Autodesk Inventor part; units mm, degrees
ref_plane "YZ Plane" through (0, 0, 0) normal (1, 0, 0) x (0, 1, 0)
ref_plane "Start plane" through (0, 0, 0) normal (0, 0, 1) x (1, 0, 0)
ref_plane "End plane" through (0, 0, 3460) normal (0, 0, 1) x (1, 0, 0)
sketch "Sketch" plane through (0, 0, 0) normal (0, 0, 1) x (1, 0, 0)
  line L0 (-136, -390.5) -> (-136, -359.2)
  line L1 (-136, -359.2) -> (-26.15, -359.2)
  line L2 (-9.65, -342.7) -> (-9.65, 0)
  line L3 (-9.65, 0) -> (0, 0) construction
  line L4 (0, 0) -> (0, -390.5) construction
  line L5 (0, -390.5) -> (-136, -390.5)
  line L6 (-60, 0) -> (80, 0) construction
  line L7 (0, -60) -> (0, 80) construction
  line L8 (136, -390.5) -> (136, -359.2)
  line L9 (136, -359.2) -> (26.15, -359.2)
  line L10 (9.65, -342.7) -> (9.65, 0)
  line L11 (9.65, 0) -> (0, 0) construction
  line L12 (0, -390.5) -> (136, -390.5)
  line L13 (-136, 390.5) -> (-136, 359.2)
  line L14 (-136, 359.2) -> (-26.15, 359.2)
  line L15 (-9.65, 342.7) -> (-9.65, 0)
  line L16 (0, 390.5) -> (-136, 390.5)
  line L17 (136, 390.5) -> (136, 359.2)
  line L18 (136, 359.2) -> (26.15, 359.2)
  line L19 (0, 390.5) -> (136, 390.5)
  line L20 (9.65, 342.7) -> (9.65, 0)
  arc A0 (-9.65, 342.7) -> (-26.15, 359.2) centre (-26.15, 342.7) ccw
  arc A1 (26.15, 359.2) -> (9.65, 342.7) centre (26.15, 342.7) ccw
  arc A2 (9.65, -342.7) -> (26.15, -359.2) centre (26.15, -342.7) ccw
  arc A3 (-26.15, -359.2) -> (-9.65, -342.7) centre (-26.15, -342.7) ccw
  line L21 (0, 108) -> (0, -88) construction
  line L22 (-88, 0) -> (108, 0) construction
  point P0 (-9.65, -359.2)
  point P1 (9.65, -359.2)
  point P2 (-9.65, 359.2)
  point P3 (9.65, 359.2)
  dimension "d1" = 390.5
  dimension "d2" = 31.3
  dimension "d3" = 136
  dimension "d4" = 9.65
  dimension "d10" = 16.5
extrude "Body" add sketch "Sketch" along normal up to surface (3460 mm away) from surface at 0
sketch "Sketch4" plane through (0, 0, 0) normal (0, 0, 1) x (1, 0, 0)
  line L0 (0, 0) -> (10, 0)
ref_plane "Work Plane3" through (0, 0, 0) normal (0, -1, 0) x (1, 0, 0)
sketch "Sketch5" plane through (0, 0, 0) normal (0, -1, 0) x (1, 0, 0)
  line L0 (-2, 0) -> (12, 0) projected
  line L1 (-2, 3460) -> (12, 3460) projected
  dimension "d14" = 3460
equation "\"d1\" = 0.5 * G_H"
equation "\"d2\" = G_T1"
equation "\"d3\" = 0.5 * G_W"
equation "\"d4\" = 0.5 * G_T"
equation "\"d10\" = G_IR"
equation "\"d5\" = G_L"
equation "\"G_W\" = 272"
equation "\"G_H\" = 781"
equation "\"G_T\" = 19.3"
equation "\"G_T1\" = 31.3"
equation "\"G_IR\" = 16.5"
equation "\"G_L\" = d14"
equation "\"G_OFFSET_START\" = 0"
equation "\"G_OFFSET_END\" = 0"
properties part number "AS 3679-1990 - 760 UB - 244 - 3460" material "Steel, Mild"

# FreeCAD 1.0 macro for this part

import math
import FreeCAD as App
import Part
import Sketcher
Q = App.Units.Quantity

doc = App.newDocument("Part")
body = doc.addObject("PartDesign::Body", "Body")

# Sketch on XY plane
sketch1 = doc.addObject("Sketcher::SketchObject", "Sketch")
body.addObject(sketch1)
sketch1.AttachmentSupport = (doc.XY_Plane, [""])
sketch1.MapMode = "FlatFace"
sketch1.addGeometry(Part.LineSegment(App.Vector(-136, -359.2, 0), App.Vector(-136, -390.5, 0)), False)
sketch1.addGeometry(Part.LineSegment(App.Vector(-136, -390.5, 0), App.Vector(136, -390.5, 0)), False)
sketch1.addGeometry(Part.LineSegment(App.Vector(136, -390.5, 0), App.Vector(136, -359.2, 0)), False)
sketch1.addGeometry(Part.LineSegment(App.Vector(136, -359.2, 0), App.Vector(26.15, -359.2, 0)), False)
sketch1.addGeometry(Part.ArcOfCircle(Part.Circle(App.Vector(26.15, -342.7, 0), App.Vector(0, 0, 1), 16.5), math.radians(180), math.radians(270)), False)
sketch1.addGeometry(Part.LineSegment(App.Vector(9.65, -342.7, 0), App.Vector(9.65, 342.7, 0)), False)
sketch1.addGeometry(Part.ArcOfCircle(Part.Circle(App.Vector(26.15, 342.7, 0), App.Vector(0, 0, 1), 16.5), math.radians(90), math.radians(180)), False)
sketch1.addGeometry(Part.LineSegment(App.Vector(26.15, 359.2, 0), App.Vector(136, 359.2, 0)), False)
sketch1.addGeometry(Part.LineSegment(App.Vector(136, 359.2, 0), App.Vector(136, 390.5, 0)), False)
sketch1.addGeometry(Part.LineSegment(App.Vector(136, 390.5, 0), App.Vector(-136, 390.5, 0)), False)
sketch1.addGeometry(Part.LineSegment(App.Vector(-136, 390.5, 0), App.Vector(-136, 359.2, 0)), False)
sketch1.addGeometry(Part.LineSegment(App.Vector(-136, 359.2, 0), App.Vector(-26.15, 359.2, 0)), False)
sketch1.addGeometry(Part.ArcOfCircle(Part.Circle(App.Vector(-26.15, 342.7, 0), App.Vector(0, 0, 1), 16.5), math.radians(0), math.radians(90)), False)
sketch1.addGeometry(Part.LineSegment(App.Vector(-9.65, 342.7, 0), App.Vector(-9.65, -342.7, 0)), False)
sketch1.addGeometry(Part.ArcOfCircle(Part.Circle(App.Vector(-26.15, -342.7, 0), App.Vector(0, 0, 1), 16.5), math.radians(-90), math.radians(0)), False)
sketch1.addGeometry(Part.LineSegment(App.Vector(-26.15, -359.2, 0), App.Vector(-136, -359.2, 0)), False)
sketch1.addConstraint(Sketcher.Constraint("Coincident", 0, 2, 1, 1))
sketch1.addConstraint(Sketcher.Constraint("Coincident", 1, 2, 2, 1))
sketch1.addConstraint(Sketcher.Constraint("Coincident", 2, 2, 3, 1))
sketch1.addConstraint(Sketcher.Constraint("Tangent", 3, 2, 4, 2))
sketch1.addConstraint(Sketcher.Constraint("Tangent", 4, 1, 5, 1))
sketch1.addConstraint(Sketcher.Constraint("Tangent", 5, 2, 6, 2))
sketch1.addConstraint(Sketcher.Constraint("Tangent", 6, 1, 7, 1))
sketch1.addConstraint(Sketcher.Constraint("Coincident", 7, 2, 8, 1))
sketch1.addConstraint(Sketcher.Constraint("Coincident", 8, 2, 9, 1))
sketch1.addConstraint(Sketcher.Constraint("Coincident", 9, 2, 10, 1))
sketch1.addConstraint(Sketcher.Constraint("Coincident", 10, 2, 11, 1))
sketch1.addConstraint(Sketcher.Constraint("Tangent", 11, 2, 12, 2))
sketch1.addConstraint(Sketcher.Constraint("Tangent", 12, 1, 13, 1))
sketch1.addConstraint(Sketcher.Constraint("Tangent", 13, 2, 14, 2))
sketch1.addConstraint(Sketcher.Constraint("Tangent", 14, 1, 15, 1))
sketch1.addConstraint(Sketcher.Constraint("Coincident", 15, 2, 0, 1))
sketch1.addConstraint(Sketcher.Constraint("Vertical", 0))
sketch1.addConstraint(Sketcher.Constraint("Horizontal", 1))
sketch1.addConstraint(Sketcher.Constraint("Vertical", 2))
sketch1.addConstraint(Sketcher.Constraint("Horizontal", 3))
sketch1.addConstraint(Sketcher.Constraint("Vertical", 5))
sketch1.addConstraint(Sketcher.Constraint("Horizontal", 7))
sketch1.addConstraint(Sketcher.Constraint("Vertical", 8))
sketch1.addConstraint(Sketcher.Constraint("Horizontal", 9))
sketch1.addConstraint(Sketcher.Constraint("Vertical", 10))
sketch1.addConstraint(Sketcher.Constraint("Horizontal", 11))
sketch1.addConstraint(Sketcher.Constraint("Vertical", 13))
sketch1.addConstraint(Sketcher.Constraint("Horizontal", 15))
sketch1.addConstraint(Sketcher.Constraint("Equal", 4, 6))
sketch1.addConstraint(Sketcher.Constraint("Equal", 6, 12))
sketch1.addConstraint(Sketcher.Constraint("Equal", 12, 14))
sketch1.addConstraint(Sketcher.Constraint("Symmetric", 4, 3, 12, 3, -1, 1))
sketch1.addConstraint(Sketcher.Constraint("Symmetric", 0, 2, 8, 2, -1, 1))
sketch1.addConstraint(Sketcher.Constraint("Symmetric", 7, 2, 10, 2, -2))
sketch1.addConstraint(Sketcher.Constraint("Symmetric", 2, 2, 15, 2, -2))
sketch1.addConstraint(Sketcher.Constraint("Radius", 4, Q("16.5 mm")))
sketch1.addConstraint(Sketcher.Constraint("DistanceY", 0, 2, 0, 1, Q("31.3 mm")))
sketch1.addConstraint(Sketcher.Constraint("DistanceX", 0, 2, -1, 1, Q("136 mm")))
sketch1.addConstraint(Sketcher.Constraint("DistanceY", 0, 2, -1, 1, Q("390.5 mm")))
sketch1.addConstraint(Sketcher.Constraint("DistanceX", -1, 1, 4, 1, Q("9.65 mm")))
pad1 = doc.addObject("PartDesign::Pad", "Pad")
body.addObject(pad1)
pad1.Profile = sketch1
pad1.Length = 3460

doc.recompute()
